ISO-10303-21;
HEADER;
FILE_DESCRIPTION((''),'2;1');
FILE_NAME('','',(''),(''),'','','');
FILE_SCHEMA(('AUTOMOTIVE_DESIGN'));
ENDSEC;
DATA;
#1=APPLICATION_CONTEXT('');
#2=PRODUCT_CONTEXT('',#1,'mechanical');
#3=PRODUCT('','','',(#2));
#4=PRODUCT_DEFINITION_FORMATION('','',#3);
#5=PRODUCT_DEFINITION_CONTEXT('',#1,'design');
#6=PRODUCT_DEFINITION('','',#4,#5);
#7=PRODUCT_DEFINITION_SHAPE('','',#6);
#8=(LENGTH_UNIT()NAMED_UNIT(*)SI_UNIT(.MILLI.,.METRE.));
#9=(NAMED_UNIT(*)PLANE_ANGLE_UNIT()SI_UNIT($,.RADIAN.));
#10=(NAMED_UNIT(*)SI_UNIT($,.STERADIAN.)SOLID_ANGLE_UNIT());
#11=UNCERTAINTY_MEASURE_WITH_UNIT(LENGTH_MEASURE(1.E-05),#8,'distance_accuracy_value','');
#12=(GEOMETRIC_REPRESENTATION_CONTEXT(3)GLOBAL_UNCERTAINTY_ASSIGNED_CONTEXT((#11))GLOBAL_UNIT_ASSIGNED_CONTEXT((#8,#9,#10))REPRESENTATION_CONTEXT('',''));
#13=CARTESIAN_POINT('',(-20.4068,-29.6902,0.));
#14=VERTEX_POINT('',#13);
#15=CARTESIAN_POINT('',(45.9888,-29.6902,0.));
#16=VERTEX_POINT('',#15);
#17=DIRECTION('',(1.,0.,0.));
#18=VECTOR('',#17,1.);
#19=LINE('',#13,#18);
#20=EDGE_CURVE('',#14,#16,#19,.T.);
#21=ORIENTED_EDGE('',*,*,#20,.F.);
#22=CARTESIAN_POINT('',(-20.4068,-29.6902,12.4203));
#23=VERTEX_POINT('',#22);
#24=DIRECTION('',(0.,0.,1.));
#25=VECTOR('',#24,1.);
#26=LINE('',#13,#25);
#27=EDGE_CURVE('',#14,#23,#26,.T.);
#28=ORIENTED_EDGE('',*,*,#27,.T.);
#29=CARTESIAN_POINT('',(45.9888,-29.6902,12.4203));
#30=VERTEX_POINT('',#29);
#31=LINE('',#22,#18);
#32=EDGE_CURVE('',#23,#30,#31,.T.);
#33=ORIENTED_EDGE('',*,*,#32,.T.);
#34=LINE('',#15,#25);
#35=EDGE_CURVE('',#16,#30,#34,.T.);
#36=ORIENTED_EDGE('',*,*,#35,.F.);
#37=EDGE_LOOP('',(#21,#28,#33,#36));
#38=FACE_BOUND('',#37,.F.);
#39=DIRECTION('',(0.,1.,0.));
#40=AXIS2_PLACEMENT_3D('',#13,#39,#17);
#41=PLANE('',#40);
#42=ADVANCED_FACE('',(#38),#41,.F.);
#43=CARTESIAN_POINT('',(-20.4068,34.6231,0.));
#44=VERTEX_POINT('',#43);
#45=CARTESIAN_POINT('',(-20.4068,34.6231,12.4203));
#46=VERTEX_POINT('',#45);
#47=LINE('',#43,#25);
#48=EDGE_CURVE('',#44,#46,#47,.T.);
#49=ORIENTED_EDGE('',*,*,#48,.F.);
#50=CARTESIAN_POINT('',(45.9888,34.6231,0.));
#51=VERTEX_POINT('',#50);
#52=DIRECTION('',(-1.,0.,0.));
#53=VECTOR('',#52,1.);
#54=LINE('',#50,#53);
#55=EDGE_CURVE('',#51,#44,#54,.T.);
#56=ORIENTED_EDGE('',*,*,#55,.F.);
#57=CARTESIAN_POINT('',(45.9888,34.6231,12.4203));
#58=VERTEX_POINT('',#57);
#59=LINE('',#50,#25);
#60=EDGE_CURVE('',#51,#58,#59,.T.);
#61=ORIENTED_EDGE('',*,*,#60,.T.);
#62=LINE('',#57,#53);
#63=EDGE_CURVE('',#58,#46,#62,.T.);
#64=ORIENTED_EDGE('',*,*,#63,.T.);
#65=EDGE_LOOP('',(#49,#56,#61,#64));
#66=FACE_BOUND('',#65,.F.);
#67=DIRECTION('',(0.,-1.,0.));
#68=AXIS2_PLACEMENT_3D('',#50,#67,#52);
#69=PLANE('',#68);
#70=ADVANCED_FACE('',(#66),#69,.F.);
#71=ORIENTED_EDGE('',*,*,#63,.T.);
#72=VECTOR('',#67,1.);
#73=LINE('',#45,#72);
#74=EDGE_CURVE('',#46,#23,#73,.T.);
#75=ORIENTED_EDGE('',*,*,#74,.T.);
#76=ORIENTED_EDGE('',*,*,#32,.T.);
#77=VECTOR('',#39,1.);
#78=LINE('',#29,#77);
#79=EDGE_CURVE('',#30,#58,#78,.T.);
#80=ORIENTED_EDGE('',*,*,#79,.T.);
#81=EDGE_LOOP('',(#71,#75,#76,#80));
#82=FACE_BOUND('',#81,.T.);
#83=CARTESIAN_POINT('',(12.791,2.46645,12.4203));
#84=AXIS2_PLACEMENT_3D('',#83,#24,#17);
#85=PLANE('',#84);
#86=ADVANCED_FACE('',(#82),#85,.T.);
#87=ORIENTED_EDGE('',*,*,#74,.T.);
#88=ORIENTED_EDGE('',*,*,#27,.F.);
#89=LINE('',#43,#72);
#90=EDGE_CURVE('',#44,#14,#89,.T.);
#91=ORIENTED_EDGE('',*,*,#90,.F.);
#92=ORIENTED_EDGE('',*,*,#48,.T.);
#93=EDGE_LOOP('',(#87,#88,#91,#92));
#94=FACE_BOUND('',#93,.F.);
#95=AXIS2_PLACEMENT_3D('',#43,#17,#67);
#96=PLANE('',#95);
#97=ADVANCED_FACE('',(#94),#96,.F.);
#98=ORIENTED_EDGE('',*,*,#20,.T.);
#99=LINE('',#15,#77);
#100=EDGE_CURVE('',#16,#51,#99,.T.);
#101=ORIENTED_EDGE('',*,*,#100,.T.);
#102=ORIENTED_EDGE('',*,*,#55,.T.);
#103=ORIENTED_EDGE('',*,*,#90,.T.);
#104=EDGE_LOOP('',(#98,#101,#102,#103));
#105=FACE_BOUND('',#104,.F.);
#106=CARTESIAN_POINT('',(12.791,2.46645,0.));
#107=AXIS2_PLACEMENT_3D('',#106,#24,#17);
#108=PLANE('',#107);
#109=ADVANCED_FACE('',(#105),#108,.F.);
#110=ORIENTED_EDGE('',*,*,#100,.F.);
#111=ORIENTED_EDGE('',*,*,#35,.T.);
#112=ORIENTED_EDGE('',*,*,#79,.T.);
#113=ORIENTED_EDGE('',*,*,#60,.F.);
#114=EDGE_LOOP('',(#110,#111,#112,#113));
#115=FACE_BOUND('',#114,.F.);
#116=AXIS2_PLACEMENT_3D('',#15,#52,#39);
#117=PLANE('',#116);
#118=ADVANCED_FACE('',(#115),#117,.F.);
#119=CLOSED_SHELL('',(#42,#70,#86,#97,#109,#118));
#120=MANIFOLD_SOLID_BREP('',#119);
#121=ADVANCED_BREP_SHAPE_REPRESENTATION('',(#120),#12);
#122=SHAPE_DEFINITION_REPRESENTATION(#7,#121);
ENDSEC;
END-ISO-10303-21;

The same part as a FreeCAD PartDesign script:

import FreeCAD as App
import Part
import Sketcher

V = App.Vector
Q = App.Units.Quantity

doc = App.newDocument("Part")
params = doc.addObject("Spreadsheet::Sheet", "Params")
for row, (alias, value) in enumerate([
    ("sketch1_width", "2.614 in"),
    ("pad1_length", "0.4889882 in"),
], start=1):
    params.set(f"A{row}", alias)
    params.set(f"B{row}", "=" + value)
    params.setAlias(f"B{row}", alias)

body = doc.addObject("PartDesign::Body", "Body")

# Sketch on XY plane
sketch1 = doc.addObject("Sketcher::SketchObject", "Sketch")
body.addObject(sketch1)
sketch1.AttachmentSupport = (doc.XY_Plane, [""])
sketch1.MapMode = "FlatFace"
sketch1.addGeometry([
    Part.LineSegment(V(-20, 35, 0), V(-20, -30, 0)),
    Part.LineSegment(V(-20, -30, 0), V(46, -30, 0)),
    Part.LineSegment(V(46, -30, 0), V(46, 35, 0)),
    Part.LineSegment(V(46, 35, 0), V(-20, 35, 0)),
], False)
sketch1.addConstraint([
    Sketcher.Constraint("Coincident", 0, 2, 1, 1),
    Sketcher.Constraint("Coincident", 1, 2, 2, 1),
    Sketcher.Constraint("Coincident", 2, 2, 3, 1),
    Sketcher.Constraint("Coincident", 3, 2, 0, 1),
    Sketcher.Constraint("Vertical", 0),
    Sketcher.Constraint("Horizontal", 1),
    Sketcher.Constraint("Vertical", 2),
    Sketcher.Constraint("Horizontal", 3),
    Sketcher.Constraint("DistanceX", 1, 1, 1, 2, Q("2.614 in")),
    Sketcher.Constraint("DistanceY", 0, 2, 0, 1, 64.3133),
    Sketcher.Constraint("DistanceY", 0, 2, -1, 1, Q("1.1689 in")),
    Sketcher.Constraint("DistanceX", 0, 2, -1, 1, 20.4068),
])
sketch1.setExpression("Constraints[8]", "Params.sketch1_width")
pad1 = doc.addObject("PartDesign::Pad", "Pad")
body.addObject(pad1)
pad1.Profile = sketch1
pad1.setExpression("Length", "Params.pad1_length")

doc.recompute()
